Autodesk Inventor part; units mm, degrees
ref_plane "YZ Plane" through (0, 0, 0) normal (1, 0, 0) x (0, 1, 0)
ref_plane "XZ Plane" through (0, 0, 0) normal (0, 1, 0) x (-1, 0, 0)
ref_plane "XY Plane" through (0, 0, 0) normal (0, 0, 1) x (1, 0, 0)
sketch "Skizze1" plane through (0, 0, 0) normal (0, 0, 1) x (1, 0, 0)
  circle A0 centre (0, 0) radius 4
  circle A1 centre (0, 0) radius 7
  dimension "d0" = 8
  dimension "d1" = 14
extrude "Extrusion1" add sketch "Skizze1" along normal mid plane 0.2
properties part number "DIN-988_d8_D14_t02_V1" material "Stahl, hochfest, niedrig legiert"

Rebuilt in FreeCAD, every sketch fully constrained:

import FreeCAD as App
import Part
import Sketcher
from FreeCAD import Vector
Q = App.Units.Quantity

doc = App.newDocument("Part")
params = doc.addObject("Spreadsheet::Sheet", "Params")
for row, (alias, value) in enumerate([
    ("sketch1_diameter", "14 mm"),
    ("sketch1_diameter2", "8 mm"),
    ("pad1_length", "0.2 mm"),
], start=1):
    params.set(f"A{row}", alias)
    params.set(f"B{row}", "=" + value)
    params.setAlias(f"B{row}", alias)

body = doc.addObject("PartDesign::Body", "Body")

sketch1 = doc.addObject("Sketcher::SketchObject", "Sketch")
body.addObject(sketch1)
sketch1.AttachmentSupport = (doc.XY_Plane, [""])
sketch1.MapMode = "FlatFace"
sketch1.addGeometry([
    Part.Circle(Vector(0, 0, 0), Vector(0, 0, 1), 7),
    Part.Circle(Vector(0, 0, 0), Vector(0, 0, 1), 4),
], False)
sketch1.addConstraint([
    Sketcher.Constraint("Coincident", 0, 3, -1, 1),
    Sketcher.Constraint("Coincident", 1, 3, -1, 1),
    Sketcher.Constraint("Diameter", 0, Q("14 mm")),
    Sketcher.Constraint("Diameter", 1, Q("8 mm")),
])
sketch1.setExpression("Constraints[2]", "Params.sketch1_diameter")
sketch1.setExpression("Constraints[3]", "Params.sketch1_diameter2")
pad1 = doc.addObject("PartDesign::Pad", "Pad")
body.addObject(pad1)
pad1.Profile = sketch1
pad1.setExpression("Length", "Params.pad1_length")
pad1.Midplane = True

doc.recompute()
